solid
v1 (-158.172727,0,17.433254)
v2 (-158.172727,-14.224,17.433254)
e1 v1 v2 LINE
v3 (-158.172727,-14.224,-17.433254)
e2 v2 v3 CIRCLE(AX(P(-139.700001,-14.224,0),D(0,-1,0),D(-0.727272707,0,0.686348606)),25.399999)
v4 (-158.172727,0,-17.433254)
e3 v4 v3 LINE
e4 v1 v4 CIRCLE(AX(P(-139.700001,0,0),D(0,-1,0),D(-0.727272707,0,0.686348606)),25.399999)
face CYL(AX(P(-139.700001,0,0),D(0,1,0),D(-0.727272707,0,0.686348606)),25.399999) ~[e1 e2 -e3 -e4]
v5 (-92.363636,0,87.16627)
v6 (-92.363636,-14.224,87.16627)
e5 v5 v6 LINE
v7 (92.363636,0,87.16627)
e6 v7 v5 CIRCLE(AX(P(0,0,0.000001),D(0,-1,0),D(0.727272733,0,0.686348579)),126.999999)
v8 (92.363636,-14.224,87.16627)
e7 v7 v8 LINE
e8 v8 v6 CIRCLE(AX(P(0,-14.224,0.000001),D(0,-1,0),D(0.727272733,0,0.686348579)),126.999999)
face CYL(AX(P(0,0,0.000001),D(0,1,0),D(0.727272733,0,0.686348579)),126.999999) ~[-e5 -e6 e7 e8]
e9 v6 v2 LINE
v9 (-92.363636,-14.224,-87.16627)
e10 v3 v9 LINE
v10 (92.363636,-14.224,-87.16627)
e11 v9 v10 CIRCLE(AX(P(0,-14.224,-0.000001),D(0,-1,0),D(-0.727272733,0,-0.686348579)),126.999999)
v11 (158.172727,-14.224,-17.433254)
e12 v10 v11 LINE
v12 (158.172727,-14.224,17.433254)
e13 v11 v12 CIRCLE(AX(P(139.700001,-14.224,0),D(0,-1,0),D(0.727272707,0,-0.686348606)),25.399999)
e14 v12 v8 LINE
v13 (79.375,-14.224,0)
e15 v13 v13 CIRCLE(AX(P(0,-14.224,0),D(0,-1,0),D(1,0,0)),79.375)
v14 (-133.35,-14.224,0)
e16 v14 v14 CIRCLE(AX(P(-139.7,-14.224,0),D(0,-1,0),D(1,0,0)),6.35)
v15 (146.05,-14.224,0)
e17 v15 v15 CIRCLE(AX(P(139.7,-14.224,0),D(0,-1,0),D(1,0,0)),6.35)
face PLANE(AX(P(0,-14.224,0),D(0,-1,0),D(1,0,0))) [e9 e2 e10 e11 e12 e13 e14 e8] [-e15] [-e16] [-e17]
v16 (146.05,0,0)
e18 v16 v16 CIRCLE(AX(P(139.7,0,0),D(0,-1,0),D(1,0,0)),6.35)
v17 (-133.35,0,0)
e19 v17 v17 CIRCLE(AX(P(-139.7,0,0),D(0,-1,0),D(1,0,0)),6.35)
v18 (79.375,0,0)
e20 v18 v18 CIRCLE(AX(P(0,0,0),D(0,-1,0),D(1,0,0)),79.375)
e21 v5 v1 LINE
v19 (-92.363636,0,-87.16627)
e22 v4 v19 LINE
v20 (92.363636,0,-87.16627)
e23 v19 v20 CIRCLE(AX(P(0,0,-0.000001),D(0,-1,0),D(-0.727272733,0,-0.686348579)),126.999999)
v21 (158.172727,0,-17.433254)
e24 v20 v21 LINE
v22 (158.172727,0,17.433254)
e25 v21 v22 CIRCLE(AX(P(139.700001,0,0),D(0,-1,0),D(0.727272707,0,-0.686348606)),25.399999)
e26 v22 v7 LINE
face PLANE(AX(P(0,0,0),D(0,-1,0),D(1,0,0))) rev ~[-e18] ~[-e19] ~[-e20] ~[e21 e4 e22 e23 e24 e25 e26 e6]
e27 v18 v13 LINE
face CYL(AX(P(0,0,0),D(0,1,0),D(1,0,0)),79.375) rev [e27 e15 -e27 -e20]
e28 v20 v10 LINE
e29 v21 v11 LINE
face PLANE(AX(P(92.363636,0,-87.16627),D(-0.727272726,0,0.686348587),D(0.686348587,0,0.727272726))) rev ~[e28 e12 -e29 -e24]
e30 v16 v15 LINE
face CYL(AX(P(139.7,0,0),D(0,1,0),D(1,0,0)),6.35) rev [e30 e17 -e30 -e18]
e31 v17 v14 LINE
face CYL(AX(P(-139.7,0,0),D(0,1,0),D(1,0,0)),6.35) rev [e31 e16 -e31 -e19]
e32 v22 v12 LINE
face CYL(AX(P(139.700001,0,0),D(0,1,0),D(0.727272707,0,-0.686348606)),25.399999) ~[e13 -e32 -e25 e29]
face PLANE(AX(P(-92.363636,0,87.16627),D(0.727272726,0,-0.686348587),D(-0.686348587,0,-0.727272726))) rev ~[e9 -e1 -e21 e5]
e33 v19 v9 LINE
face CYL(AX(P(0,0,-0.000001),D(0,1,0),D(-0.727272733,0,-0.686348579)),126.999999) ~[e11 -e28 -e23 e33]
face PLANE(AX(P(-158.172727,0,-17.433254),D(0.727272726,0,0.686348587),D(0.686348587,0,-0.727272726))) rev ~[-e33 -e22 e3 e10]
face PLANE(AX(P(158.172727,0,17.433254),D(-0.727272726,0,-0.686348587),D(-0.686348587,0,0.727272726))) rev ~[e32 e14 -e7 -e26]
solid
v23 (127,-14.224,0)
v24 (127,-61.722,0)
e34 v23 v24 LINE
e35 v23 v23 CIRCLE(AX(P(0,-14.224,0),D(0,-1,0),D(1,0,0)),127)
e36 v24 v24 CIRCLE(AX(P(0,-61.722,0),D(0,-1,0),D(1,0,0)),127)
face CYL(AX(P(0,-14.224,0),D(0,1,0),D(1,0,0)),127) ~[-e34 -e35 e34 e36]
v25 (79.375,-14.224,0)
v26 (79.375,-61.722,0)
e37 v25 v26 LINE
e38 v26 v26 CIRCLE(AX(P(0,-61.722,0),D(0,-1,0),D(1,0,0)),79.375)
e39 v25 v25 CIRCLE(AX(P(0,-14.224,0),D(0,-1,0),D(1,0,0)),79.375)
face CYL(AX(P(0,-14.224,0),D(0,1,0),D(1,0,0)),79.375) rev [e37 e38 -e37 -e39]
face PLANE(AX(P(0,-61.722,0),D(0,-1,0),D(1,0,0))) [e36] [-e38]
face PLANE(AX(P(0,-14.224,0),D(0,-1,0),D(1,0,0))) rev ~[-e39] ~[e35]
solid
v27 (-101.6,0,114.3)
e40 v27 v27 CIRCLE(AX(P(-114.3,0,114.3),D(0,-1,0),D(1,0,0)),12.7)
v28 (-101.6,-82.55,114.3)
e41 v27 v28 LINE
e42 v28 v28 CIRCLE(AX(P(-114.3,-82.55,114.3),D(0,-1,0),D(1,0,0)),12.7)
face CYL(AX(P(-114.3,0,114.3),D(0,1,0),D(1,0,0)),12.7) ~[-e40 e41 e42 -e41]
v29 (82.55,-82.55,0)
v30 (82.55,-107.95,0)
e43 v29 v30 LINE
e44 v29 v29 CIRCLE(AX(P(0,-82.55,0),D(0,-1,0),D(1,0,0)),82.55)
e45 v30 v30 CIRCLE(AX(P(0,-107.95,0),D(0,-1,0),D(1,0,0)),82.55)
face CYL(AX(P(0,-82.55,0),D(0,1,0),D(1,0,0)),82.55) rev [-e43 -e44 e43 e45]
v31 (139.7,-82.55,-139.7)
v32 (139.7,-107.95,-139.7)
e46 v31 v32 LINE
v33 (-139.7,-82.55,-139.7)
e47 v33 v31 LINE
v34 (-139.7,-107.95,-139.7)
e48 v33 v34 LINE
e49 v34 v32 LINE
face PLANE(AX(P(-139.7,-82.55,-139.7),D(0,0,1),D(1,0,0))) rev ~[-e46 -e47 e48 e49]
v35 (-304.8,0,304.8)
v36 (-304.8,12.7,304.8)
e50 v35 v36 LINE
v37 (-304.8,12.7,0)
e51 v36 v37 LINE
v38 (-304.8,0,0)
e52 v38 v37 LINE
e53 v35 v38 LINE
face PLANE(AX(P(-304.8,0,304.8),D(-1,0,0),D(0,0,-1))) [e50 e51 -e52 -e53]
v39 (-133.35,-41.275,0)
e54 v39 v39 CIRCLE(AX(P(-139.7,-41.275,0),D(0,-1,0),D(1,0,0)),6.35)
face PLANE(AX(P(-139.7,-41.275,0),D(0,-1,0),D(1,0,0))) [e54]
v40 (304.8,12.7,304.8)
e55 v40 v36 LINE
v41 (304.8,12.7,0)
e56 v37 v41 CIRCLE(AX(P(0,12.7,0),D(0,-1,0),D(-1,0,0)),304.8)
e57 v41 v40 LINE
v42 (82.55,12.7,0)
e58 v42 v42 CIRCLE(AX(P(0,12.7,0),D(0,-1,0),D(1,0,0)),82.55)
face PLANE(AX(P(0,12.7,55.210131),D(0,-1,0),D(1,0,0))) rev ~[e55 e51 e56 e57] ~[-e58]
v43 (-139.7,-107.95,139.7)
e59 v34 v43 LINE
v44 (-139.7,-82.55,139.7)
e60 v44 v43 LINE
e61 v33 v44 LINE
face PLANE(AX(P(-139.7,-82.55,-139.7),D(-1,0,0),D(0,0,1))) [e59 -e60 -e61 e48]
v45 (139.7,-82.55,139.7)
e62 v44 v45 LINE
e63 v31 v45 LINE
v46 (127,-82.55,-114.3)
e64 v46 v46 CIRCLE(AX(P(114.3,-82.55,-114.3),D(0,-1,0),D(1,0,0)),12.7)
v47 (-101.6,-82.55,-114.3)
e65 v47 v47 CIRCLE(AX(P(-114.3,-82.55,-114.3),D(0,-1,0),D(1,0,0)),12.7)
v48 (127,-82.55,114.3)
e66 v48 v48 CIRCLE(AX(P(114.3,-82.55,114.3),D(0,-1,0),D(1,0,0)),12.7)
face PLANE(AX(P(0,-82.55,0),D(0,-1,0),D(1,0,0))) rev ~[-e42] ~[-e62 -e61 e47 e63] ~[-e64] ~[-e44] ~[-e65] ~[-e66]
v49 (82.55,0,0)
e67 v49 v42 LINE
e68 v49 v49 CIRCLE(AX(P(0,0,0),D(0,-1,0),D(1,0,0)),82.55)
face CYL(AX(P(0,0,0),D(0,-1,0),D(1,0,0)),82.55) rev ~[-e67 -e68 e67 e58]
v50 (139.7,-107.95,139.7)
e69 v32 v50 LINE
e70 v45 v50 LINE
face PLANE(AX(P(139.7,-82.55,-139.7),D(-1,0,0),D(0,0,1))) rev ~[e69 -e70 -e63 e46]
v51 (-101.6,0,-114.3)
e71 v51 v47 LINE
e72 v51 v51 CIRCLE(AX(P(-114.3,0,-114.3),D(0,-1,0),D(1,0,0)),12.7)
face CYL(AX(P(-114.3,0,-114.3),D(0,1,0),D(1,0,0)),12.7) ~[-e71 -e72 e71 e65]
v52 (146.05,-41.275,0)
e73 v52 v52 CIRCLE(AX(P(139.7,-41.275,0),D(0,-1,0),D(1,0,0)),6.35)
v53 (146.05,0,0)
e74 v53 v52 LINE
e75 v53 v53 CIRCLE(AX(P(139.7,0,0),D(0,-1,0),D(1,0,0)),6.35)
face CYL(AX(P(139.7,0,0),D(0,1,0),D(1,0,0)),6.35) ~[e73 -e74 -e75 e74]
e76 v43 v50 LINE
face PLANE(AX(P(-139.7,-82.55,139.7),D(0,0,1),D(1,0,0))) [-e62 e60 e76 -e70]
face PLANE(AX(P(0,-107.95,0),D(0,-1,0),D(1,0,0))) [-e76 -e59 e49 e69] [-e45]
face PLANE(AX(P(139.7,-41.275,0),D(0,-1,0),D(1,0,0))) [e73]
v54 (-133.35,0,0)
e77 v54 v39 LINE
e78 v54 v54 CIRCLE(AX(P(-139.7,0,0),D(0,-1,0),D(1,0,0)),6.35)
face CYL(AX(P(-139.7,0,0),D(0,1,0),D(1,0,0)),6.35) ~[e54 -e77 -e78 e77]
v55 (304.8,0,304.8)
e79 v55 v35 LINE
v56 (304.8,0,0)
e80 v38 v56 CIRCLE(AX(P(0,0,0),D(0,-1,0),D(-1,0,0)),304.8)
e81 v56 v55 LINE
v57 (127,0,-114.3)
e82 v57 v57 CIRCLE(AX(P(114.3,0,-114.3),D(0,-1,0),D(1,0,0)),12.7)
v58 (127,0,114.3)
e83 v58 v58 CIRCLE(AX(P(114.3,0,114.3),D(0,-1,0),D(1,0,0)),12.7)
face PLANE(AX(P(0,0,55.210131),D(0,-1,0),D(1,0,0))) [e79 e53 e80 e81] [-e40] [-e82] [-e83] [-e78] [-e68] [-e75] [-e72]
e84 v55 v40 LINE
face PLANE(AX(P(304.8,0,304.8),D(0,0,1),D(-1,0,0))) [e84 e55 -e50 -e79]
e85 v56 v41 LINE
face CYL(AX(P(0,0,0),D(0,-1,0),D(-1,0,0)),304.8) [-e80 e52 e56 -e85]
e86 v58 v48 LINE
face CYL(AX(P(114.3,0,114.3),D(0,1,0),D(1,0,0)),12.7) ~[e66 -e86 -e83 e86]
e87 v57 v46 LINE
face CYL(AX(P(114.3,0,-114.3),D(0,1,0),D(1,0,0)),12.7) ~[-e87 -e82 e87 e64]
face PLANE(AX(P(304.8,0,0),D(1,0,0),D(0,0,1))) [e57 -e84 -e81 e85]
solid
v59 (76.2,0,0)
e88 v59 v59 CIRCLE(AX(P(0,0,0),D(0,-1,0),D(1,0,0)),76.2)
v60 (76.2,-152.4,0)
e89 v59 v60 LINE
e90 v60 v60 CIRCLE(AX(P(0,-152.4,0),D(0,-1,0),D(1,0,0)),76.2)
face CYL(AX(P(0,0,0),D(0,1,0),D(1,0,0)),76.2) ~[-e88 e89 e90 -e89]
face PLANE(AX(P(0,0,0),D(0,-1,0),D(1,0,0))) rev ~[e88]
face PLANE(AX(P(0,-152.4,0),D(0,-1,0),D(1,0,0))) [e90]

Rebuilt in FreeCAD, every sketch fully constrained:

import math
import FreeCAD as App
import Part
import Sketcher

V = App.Vector
Q = App.Units.Quantity


def add_polygon(sketch, points):
    """Adds a closed chain of lines whose ends are joined by coincident constraints."""
    first, n = sketch.GeometryCount, len(points)
    for a, b in zip(points, points[1:] + points[:1]):
        sketch.addGeometry(Part.LineSegment(App.Vector(*a, 0), App.Vector(*b, 0)), False)
    for i in range(n):
        sketch.addConstraint(Sketcher.Constraint("Coincident", first + i, 2, first + (i + 1) % n, 1))

doc = App.newDocument("Part")
body = doc.addObject("PartDesign::Body", "Body")

# Sketch on XZ plane
sketch1 = body.newObject("Sketcher::SketchObject", "Sketch")
sketch1.AttachmentSupport = (doc.getObject("XZ_Plane"), [""])
sketch1.MapMode = "FlatFace"
sketch1.addGeometry([
    Part.LineSegment(V(-305, 305, 0), V(-305, 0, 0)),  # 0
    Part.ArcOfCircle(Part.Circle(V(0, 0, 0), V(0, 0, 1), 305), math.radians(180), math.radians(360)),  # 1
    Part.LineSegment(V(305, 0, 0), V(305, 305, 0)),  # 2
    Part.LineSegment(V(305, 305, 0), V(-305, 305, 0)),  # 3
    Part.Circle(V(0, 0, 0), V(0, 0, 1), 83),  # 4
], False)
sketch1.addConstraint([
    Sketcher.Constraint("Tangent", 0, 2, 1, 1),
    Sketcher.Constraint("Tangent", 1, 2, 2, 1),
    Sketcher.Constraint("Coincident", 2, 2, 3, 1),
    Sketcher.Constraint("Coincident", 3, 2, 0, 1),
    Sketcher.Constraint("Vertical", 0),
    Sketcher.Constraint("Vertical", 2),
    Sketcher.Constraint("Horizontal", 3),
    Sketcher.Constraint("Coincident", 1, 3, -1, 1),
    Sketcher.Constraint("Coincident", 4, 3, -1, 1),
    Sketcher.Constraint("Radius", 1, Q("12 in")),
    Sketcher.Constraint("Diameter", 4, Q("6.5 in")),
    Sketcher.Constraint("DistanceY", 0, 2, 0, 1, Q("12 in")),
])
pad1 = body.newObject("PartDesign::Pad", "Pad")
pad1.Profile = sketch1
pad1.Length = Q("0.5 in")
pad1.Reversed = True

# Sketch on XZ plane
sketch2 = body.newObject("Sketcher::SketchObject", "Sketch001")
sketch2.AttachmentSupport = (doc.getObject("XZ_Plane"), [""])
sketch2.MapMode = "FlatFace"
sketch2.addGeometry([
    Part.Circle(V(-140, 0, 0), V(0, 0, 1), 6),
    Part.Circle(V(140, 0, 0), V(0, 0, 1), 6),
], False)
sketch2.addConstraint([
    Sketcher.Constraint("Equal", 0, 1),
    Sketcher.Constraint("Symmetric", 0, 3, 1, 3, -1, 1),
    Sketcher.Constraint("PointOnObject", 0, 3, -1),
    Sketcher.Constraint("Diameter", 0, Q("0.5 in")),
    Sketcher.Constraint("DistanceX", 0, 3, 1, 3, Q("11 in")),
])
pad2 = body.newObject("PartDesign::Pad", "Pad001")
pad2.Profile = sketch2
pad2.Length = Q("1.625 in")

# Sketch on XZ plane
sketch3 = body.newObject("Sketcher::SketchObject", "Sketch002")
sketch3.AttachmentSupport = (doc.getObject("XZ_Plane"), [""])
sketch3.MapMode = "FlatFace"
sketch3.addGeometry(Part.Circle(V(114, 114, 0), V(0, 0, 1), 13), False)
sketch3.addConstraint([
    Sketcher.Constraint("Diameter", 0, Q("1 in")),
    Sketcher.Constraint("DistanceX", -1, 1, 0, 3, Q("4.5 in")),
    Sketcher.Constraint("DistanceY", -1, 1, 0, 3, Q("4.5 in")),
])
pad3 = body.newObject("PartDesign::Pad", "Pad002")
pad3.Profile = sketch3
pad3.Length = Q("3.25 in")

# Sketch on XZ plane
sketch4 = body.newObject("Sketcher::SketchObject", "Sketch003")
sketch4.AttachmentSupport = (doc.getObject("XZ_Plane"), [""])
sketch4.MapMode = "FlatFace"
sketch4.addGeometry([
    Part.Circle(V(-114, 114, 0), V(0, 0, 1), 13),
    Part.Circle(V(114, -114, 0), V(0, 0, 1), 13),
    Part.Circle(V(-114, -114, 0), V(0, 0, 1), 13),
], False)
sketch4.addConstraint([
    Sketcher.Constraint("Equal", 0, 1),
    Sketcher.Constraint("Equal", 1, 2),
    Sketcher.Constraint("Symmetric", 0, 3, 1, 3, -1, 1),
    Sketcher.Constraint("Symmetric", 1, 3, 2, 3, -2),
    Sketcher.Constraint("Diameter", 0, Q("1 in")),
    Sketcher.Constraint("DistanceX", 0, 3, 1, 3, Q("9 in")),
    Sketcher.Constraint("DistanceY", 1, 3, 0, 3, Q("9 in")),
])
pad4 = body.newObject("PartDesign::Pad", "Pad003")
pad4.Profile = sketch4
pad4.Length = Q("3.25 in")

# Sketch on XZ plane
sketch5 = body.newObject("Sketcher::SketchObject", "Sketch004")
sketch5.AttachmentSupport = (doc.getObject("XZ_Plane"), [""])
sketch5.MapMode = "FlatFace"
sketch5.AttachmentOffset = App.Placement(V(0, 0, 3.25 * 25.4), App.Rotation())
add_polygon(sketch5, [(-140, 140), (-140, -140), (140, -140), (140, 140)])  # lines 0-3
sketch5.addGeometry(Part.Circle(V(0, 0, 0), V(0, 0, 1), 83), False)  # 4
sketch5.addConstraint([
    Sketcher.Constraint("Vertical", 0),
    Sketcher.Constraint("Horizontal", 1),
    Sketcher.Constraint("Vertical", 2),
    Sketcher.Constraint("Horizontal", 3),
    Sketcher.Constraint("Coincident", 4, 3, -1, 1),
    Sketcher.Constraint("Symmetric", 0, 2, 2, 2, -1, 1),
    Sketcher.Constraint("Equal", 3, 0),
    Sketcher.Constraint("Diameter", 4, Q("6.5 in")),
    Sketcher.Constraint("DistanceX", 1, 1, 1, 2, Q("11 in")),
])
pad5 = body.newObject("PartDesign::Pad", "Pad004")
pad5.Profile = sketch5
pad5.Length = Q("1 in")
body2 = doc.addObject("PartDesign::Body", "Body001")

# Sketch on XZ plane
sketch6 = body2.newObject("Sketcher::SketchObject", "Sketch005")
sketch6.AttachmentSupport = (doc.getObject("XZ_Plane001"), [""])
sketch6.MapMode = "FlatFace"
sketch6.addGeometry(Part.Circle(V(0, 0, 0), V(0, 0, 1), 76), False)
sketch6.addConstraint([
    Sketcher.Constraint("Coincident", 0, 3, -1, 1),
    Sketcher.Constraint("Diameter", 0, Q("6 in")),
])
pad6 = body2.newObject("PartDesign::Pad", "Pad005")
pad6.Profile = sketch6
pad6.Length = Q("6 in")
body3 = doc.addObject("PartDesign::Body", "Body002")

# Sketch on XZ plane
sketch7 = body3.newObject("Sketcher::SketchObject", "Sketch006")
sketch7.AttachmentSupport = (doc.getObject("XZ_Plane002"), [""])
sketch7.MapMode = "FlatFace"
sketch7.addGeometry([
    Part.LineSegment(V(-92, 87, 0), V(-158, 17, 0)),  # 0
    Part.ArcOfCircle(Part.Circle(V(-140, 0, 0), V(0, 0, 1), 25), math.radians(137), math.radians(223)),  # 1
    Part.LineSegment(V(-158, -17, 0), V(-92, -87, 0)),  # 2
    Part.ArcOfCircle(Part.Circle(V(0, 0, 0), V(0, 0, 1), 127), math.radians(-137), math.radians(-43)),  # 3
    Part.LineSegment(V(92, -87, 0), V(158, -17, 0)),  # 4
    Part.ArcOfCircle(Part.Circle(V(140, 0, 0), V(0, 0, 1), 25), math.radians(-43), math.radians(43)),  # 5
    Part.LineSegment(V(158, 17, 0), V(92, 87, 0)),  # 6
    Part.ArcOfCircle(Part.Circle(V(0, 0, 0), V(0, 0, 1), 127), math.radians(43), math.radians(137)),  # 7
    Part.Circle(V(-140, 0, 0), V(0, 0, 1), 6),  # 8
    Part.Circle(V(0, 0, 0), V(0, 0, 1), 79),  # 9
    Part.Circle(V(140, 0, 0), V(0, 0, 1), 6),  # 10
], False)
sketch7.addConstraint([
    Sketcher.Constraint("Tangent", 0, 2, 1, 1),
    Sketcher.Constraint("Tangent", 1, 2, 2, 1),
    Sketcher.Constraint("Tangent", 2, 2, 3, 1),
    Sketcher.Constraint("Tangent", 3, 2, 4, 1),
    Sketcher.Constraint("Tangent", 4, 2, 5, 1),
    Sketcher.Constraint("Tangent", 5, 2, 6, 1),
    Sketcher.Constraint("Tangent", 6, 2, 7, 1),
    Sketcher.Constraint("Tangent", 7, 2, 0, 1),
    Sketcher.Constraint("Coincident", 3, 3, -1, 1),
    Sketcher.Constraint("Coincident", 7, 3, -1, 1),
    Sketcher.Constraint("Coincident", 9, 3, -1, 1),
    Sketcher.Constraint("Coincident", 8, 3, 1, 3),
    Sketcher.Constraint("Coincident", 10, 3, 5, 3),
    Sketcher.Constraint("Equal", 1, 5),
    Sketcher.Constraint("Equal", 3, 7),
    Sketcher.Constraint("Equal", 8, 10),
    Sketcher.Constraint("Symmetric", 1, 3, 5, 3, -1, 1),
    Sketcher.Constraint("PointOnObject", 1, 3, -1),
    Sketcher.Constraint("Radius", 1, Q("1 in")),
    Sketcher.Constraint("Radius", 3, Q("4.9999999 in")),
    Sketcher.Constraint("Diameter", 8, Q("0.5 in")),
    Sketcher.Constraint("Diameter", 9, Q("6.25 in")),
    Sketcher.Constraint("DistanceX", 1, 3, 5, 3, Q("11.0000001 in")),
])
pad7 = body3.newObject("PartDesign::Pad", "Pad006")
pad7.Profile = sketch7
pad7.Length = Q("0.56 in")
body4 = doc.addObject("PartDesign::Body", "Body003")

# Sketch on XZ plane
sketch8 = body4.newObject("Sketcher::SketchObject", "Sketch007")
sketch8.AttachmentSupport = (doc.getObject("XZ_Plane003"), [""])
sketch8.MapMode = "FlatFace"
sketch8.AttachmentOffset = App.Placement(V(0, 0, 0.56 * 25.4), App.Rotation())
sketch8.addGeometry([
    Part.Circle(V(0, 0, 0), V(0, 0, 1), 127),
    Part.Circle(V(0, 0, 0), V(0, 0, 1), 79),
], False)
sketch8.addConstraint([
    Sketcher.Constraint("Coincident", 0, 3, -1, 1),
    Sketcher.Constraint("Coincident", 1, 3, -1, 1),
    Sketcher.Constraint("Diameter", 0, Q("10 in")),
    Sketcher.Constraint("Diameter", 1, Q("6.25 in")),
])
pad8 = body4.newObject("PartDesign::Pad", "Pad007")
pad8.Profile = sketch8
pad8.Length = Q("1.87 in")

doc.recompute()
